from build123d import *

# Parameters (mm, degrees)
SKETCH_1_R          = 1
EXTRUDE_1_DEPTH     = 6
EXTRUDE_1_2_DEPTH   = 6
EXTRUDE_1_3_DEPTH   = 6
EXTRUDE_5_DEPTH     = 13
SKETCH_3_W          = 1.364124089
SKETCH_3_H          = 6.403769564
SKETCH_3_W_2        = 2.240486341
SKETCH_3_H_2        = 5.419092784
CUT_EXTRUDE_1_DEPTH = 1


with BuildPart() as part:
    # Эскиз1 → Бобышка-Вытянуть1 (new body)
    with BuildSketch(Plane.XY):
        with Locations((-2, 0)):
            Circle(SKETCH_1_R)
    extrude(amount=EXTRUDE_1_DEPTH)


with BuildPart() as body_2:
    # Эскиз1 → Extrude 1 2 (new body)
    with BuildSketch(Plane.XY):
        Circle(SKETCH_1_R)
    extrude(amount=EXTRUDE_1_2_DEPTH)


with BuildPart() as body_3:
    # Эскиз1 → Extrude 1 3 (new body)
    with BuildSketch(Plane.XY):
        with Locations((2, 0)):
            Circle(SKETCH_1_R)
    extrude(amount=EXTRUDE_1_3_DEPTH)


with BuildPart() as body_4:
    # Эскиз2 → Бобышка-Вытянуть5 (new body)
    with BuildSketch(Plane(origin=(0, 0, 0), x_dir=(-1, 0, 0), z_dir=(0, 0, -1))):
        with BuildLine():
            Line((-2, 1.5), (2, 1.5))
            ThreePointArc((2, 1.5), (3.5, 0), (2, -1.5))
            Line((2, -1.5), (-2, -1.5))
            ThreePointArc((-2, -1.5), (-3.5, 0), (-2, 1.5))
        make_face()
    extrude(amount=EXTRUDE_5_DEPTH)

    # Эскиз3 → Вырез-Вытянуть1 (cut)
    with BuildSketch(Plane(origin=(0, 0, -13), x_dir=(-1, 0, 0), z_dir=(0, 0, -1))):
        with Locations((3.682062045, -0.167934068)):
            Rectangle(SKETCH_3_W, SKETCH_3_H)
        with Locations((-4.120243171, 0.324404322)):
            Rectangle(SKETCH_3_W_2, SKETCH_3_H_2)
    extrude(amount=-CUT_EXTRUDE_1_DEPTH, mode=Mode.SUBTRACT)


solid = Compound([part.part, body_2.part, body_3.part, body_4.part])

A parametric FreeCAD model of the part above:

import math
import FreeCAD as App
import Part
import Sketcher


def add_polygon(sketch, points):
    """Adds a closed chain of lines whose ends are joined by coincident constraints."""
    first, n = sketch.GeometryCount, len(points)
    for a, b in zip(points, points[1:] + points[:1]):
        sketch.addGeometry(Part.LineSegment(App.Vector(*a, 0), App.Vector(*b, 0)), False)
    for i in range(n):
        sketch.addConstraint(Sketcher.Constraint("Coincident", first + i, 2, first + (i + 1) % n, 1))

doc = App.newDocument("Part")
body = doc.addObject("PartDesign::Body", "Body")

sketch1 = body.newObject("Sketcher::SketchObject", "Sketch")
sketch1.AttachmentSupport = (doc.getObject("XY_Plane"), [""])
sketch1.MapMode = "FlatFace"
sketch1.addGeometry(Part.Circle(App.Vector(-2, 0, 0), App.Vector(0, 0, 1), 1), False)
sketch1.addConstraint([
    Sketcher.Constraint("PointOnObject", 0, 3, -1),
    Sketcher.Constraint("Diameter", 0, 2.0),
    Sketcher.Constraint("DistanceX", 0, 3, -1, 1, 2.0),
])
pad1 = body.newObject("PartDesign::Pad", "Pad")
pad1.Profile = sketch1
pad1.Length = 6
body2 = doc.addObject("PartDesign::Body", "Body001")

sketch2 = body2.newObject("Sketcher::SketchObject", "Sketch001")
sketch2.AttachmentSupport = (doc.getObject("XY_Plane001"), [""])
sketch2.MapMode = "FlatFace"
sketch2.addGeometry(Part.Circle(App.Vector(0, 0, 0), App.Vector(0, 0, 1), 1), False)
sketch2.addConstraint([
    Sketcher.Constraint("Coincident", 0, 3, -1, 1),
    Sketcher.Constraint("Diameter", 0, 2.0),
])
pad2 = body2.newObject("PartDesign::Pad", "Pad001")
pad2.Profile = sketch2
pad2.Length = 6
body3 = doc.addObject("PartDesign::Body", "Body002")

sketch3 = body3.newObject("Sketcher::SketchObject", "Sketch002")
sketch3.AttachmentSupport = (doc.getObject("XY_Plane002"), [""])
sketch3.MapMode = "FlatFace"
sketch3.addGeometry(Part.Circle(App.Vector(2, 0, 0), App.Vector(0, 0, 1), 1), False)
sketch3.addConstraint([
    Sketcher.Constraint("PointOnObject", 0, 3, -1),
    Sketcher.Constraint("Diameter", 0, 2.0),
    Sketcher.Constraint("DistanceX", -1, 1, 0, 3, 2.0),
])
pad3 = body3.newObject("PartDesign::Pad", "Pad002")
pad3.Profile = sketch3
pad3.Length = 6
body4 = doc.addObject("PartDesign::Body", "Body003")

sketch4 = body4.newObject("Sketcher::SketchObject", "Sketch003")
sketch4.AttachmentSupport = (doc.getObject("XY_Plane003"), [""])
sketch4.MapMode = "FlatFace"
sketch4.addGeometry([
    Part.LineSegment(App.Vector(-2, 1.5, 0), App.Vector(2, 1.5, 0)),
    Part.ArcOfCircle(Part.Circle(App.Vector(2, 0, 0), App.Vector(0, 0, 1), 1.5), math.radians(-90), math.radians(90)),
    Part.LineSegment(App.Vector(2, -1.5, 0), App.Vector(-2, -1.5, 0)),
    Part.ArcOfCircle(Part.Circle(App.Vector(-2, 0, 0), App.Vector(0, 0, 1), 1.5), math.radians(90), math.radians(270)),
], False)
sketch4.addConstraint([
    Sketcher.Constraint("Tangent", 0, 2, 1, 2),
    Sketcher.Constraint("Tangent", 1, 1, 2, 1),
    Sketcher.Constraint("Tangent", 2, 2, 3, 2),
    Sketcher.Constraint("Tangent", 3, 1, 0, 1),
    Sketcher.Constraint("Horizontal", 0),
    Sketcher.Constraint("Horizontal", 2),
    Sketcher.Constraint("Symmetric", 1, 3, 3, 3, -1, 1),
    Sketcher.Constraint("Radius", 1, 1.5),
    Sketcher.Constraint("DistanceX", 0, 1, 0, 2, 4.0),
])
pad4 = body4.newObject("PartDesign::Pad", "Pad003")
pad4.Profile = sketch4
pad4.Length = 13
pad4.Reversed = True

sketch5 = body4.newObject("Sketcher::SketchObject", "Sketch004")
sketch5.AttachmentSupport = (doc.getObject("XY_Plane003"), [""])
sketch5.MapMode = "FlatFace"
sketch5.AttachmentOffset = App.Placement(App.Vector(0, 0, -13), App.Rotation())
add_polygon(sketch5, [(-3, 3.033951), (-3, -3.369819), (-4.364124, -3.369819), (-4.364124, 3.033951)])
add_polygon(sketch5, [(5.240486, 3.033951), (5.240486, -2.385142), (3, -2.385142), (3, 3.033951)])
sketch5.addConstraint([
    Sketcher.Constraint("Vertical", 0),
    Sketcher.Constraint("Horizontal", 1),
    Sketcher.Constraint("Vertical", 2),
    Sketcher.Constraint("Horizontal", 3),
    Sketcher.Constraint("Vertical", 4),
    Sketcher.Constraint("Horizontal", 5),
    Sketcher.Constraint("Vertical", 6),
    Sketcher.Constraint("Horizontal", 7),
    Sketcher.Constraint("Symmetric", 3, 2, 6, 2, -2),
    Sketcher.Constraint("DistanceX", 0, 2, -1, 1, 3.0),
    Sketcher.Constraint("DistanceY", 0, 2, 0, 1, 6.40377),
    Sketcher.Constraint("DistanceX", 1, 2, 1, 1, 1.364124),
    Sketcher.Constraint("DistanceX", 5, 2, 5, 1, 2.240486),
    Sketcher.Constraint("DistanceY", 4, 2, 4, 1, 5.419093),
    Sketcher.Constraint("DistanceY", 0, 2, -1, 1, 3.369819),
])
pocket1 = body4.newObject("PartDesign::Pocket", "Pocket")
pocket1.Profile = sketch5
pocket1.Length = 1
pocket1.Reversed = True

doc.recompute()
